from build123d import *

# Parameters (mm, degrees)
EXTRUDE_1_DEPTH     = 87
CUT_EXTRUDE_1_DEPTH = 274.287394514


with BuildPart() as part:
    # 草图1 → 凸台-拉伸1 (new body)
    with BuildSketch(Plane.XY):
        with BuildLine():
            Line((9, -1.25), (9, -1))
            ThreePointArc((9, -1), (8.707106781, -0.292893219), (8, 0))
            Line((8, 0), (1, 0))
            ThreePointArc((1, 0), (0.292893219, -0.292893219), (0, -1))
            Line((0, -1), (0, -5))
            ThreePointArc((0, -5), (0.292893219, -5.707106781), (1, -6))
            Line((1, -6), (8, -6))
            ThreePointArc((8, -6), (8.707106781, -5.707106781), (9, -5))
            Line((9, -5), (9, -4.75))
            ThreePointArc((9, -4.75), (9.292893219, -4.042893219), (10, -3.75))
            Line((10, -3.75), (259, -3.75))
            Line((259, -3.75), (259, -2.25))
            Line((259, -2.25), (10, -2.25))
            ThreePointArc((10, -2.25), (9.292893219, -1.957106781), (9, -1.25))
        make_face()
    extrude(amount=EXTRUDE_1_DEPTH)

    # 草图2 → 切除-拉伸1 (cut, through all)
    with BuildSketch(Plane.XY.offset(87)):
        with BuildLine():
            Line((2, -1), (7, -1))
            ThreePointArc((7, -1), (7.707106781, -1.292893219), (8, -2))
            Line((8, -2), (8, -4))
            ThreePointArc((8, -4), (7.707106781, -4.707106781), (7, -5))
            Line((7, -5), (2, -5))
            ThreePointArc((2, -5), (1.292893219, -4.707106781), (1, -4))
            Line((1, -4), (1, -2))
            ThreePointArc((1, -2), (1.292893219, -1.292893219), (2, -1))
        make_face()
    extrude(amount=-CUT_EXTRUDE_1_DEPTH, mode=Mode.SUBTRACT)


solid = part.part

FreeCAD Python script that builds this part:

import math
import FreeCAD as App
import Part
import Sketcher

V = App.Vector
Q = App.Units.Quantity

doc = App.newDocument("Part")
params = doc.addObject("Spreadsheet::Sheet", "Params")
for row, (alias, value) in enumerate([
    ("sketch1_radius", "1 mm"),
    ("sketch1_width", "7 mm"),
    ("sketch1_width2", "249 mm"),
    ("sketch1_height", "4 mm"),
    ("sketch1_height2", "1.5 mm"),
    ("pad1_length", "87 mm"),
    ("sketch2_radius", "1 mm"),
    ("sketch2_width", "5 mm"),
    ("sketch2_height", "2 mm"),
], start=1):
    params.set(f"A{row}", alias)
    params.set(f"B{row}", "=" + value)
    params.setAlias(f"B{row}", alias)

body = doc.addObject("PartDesign::Body", "Body")

sketch1 = body.newObject("Sketcher::SketchObject", "Sketch")
sketch1.AttachmentSupport = (doc.getObject("XY_Plane"), [""])
sketch1.MapMode = "FlatFace"
sketch1.addGeometry([
    Part.LineSegment(V(9, -1.25, 0), V(9, -1, 0)),
    Part.ArcOfCircle(Part.Circle(V(8, -1, 0), V(0, 0, 1), 1), math.radians(0), math.radians(90)),
    Part.LineSegment(V(8, 0, 0), V(1, 0, 0)),
    Part.ArcOfCircle(Part.Circle(V(1, -1, 0), V(0, 0, 1), 1), math.radians(90), math.radians(180)),
    Part.LineSegment(V(0, -1, 0), V(0, -5, 0)),
    Part.ArcOfCircle(Part.Circle(V(1, -5, 0), V(0, 0, 1), 1), math.radians(-180), math.radians(-90)),
    Part.LineSegment(V(1, -6, 0), V(8, -6, 0)),
    Part.ArcOfCircle(Part.Circle(V(8, -5, 0), V(0, 0, 1), 1), math.radians(-90), math.radians(0)),
    Part.LineSegment(V(9, -5, 0), V(9, -4.75, 0)),
    Part.ArcOfCircle(Part.Circle(V(10, -4.75, 0), V(0, 0, 1), 1), math.radians(90), math.radians(180)),
    Part.LineSegment(V(10, -3.75, 0), V(259, -3.75, 0)),
    Part.LineSegment(V(259, -3.75, 0), V(259, -2.25, 0)),
    Part.LineSegment(V(259, -2.25, 0), V(10, -2.25, 0)),
    Part.ArcOfCircle(Part.Circle(V(10, -1.25, 0), V(0, 0, 1), 1), math.radians(-180), math.radians(-90)),
], False)
sketch1.addConstraint([
    Sketcher.Constraint("Tangent", 0, 2, 1, 1),
    Sketcher.Constraint("Tangent", 1, 2, 2, 1),
    Sketcher.Constraint("Tangent", 2, 2, 3, 1),
    Sketcher.Constraint("Tangent", 3, 2, 4, 1),
    Sketcher.Constraint("Tangent", 4, 2, 5, 1),
    Sketcher.Constraint("Tangent", 5, 2, 6, 1),
    Sketcher.Constraint("Tangent", 6, 2, 7, 1),
    Sketcher.Constraint("Tangent", 7, 2, 8, 1),
    Sketcher.Constraint("Tangent", 8, 2, 9, 2),
    Sketcher.Constraint("Tangent", 9, 1, 10, 1),
    Sketcher.Constraint("Coincident", 10, 2, 11, 1),
    Sketcher.Constraint("Coincident", 11, 2, 12, 1),
    Sketcher.Constraint("Tangent", 12, 2, 13, 2),
    Sketcher.Constraint("Tangent", 13, 1, 0, 1),
    Sketcher.Constraint("Vertical", 0),
    Sketcher.Constraint("Horizontal", 2),
    Sketcher.Constraint("Vertical", 4),
    Sketcher.Constraint("Horizontal", 6),
    Sketcher.Constraint("Vertical", 8),
    Sketcher.Constraint("Horizontal", 10),
    Sketcher.Constraint("Vertical", 11),
    Sketcher.Constraint("Horizontal", 12),
    Sketcher.Constraint("Equal", 1, 3),
    Sketcher.Constraint("Equal", 3, 5),
    Sketcher.Constraint("Equal", 5, 7),
    Sketcher.Constraint("Equal", 7, 9),
    Sketcher.Constraint("Equal", 9, 13),
    Sketcher.Constraint("PointOnObject", 1, 2, -1),
    Sketcher.Constraint("PointOnObject", 3, 2, -2),
    Sketcher.Constraint("Vertical", 1, 3, 7, 3),
    Sketcher.Constraint("Equal", 0, 8),
    Sketcher.Constraint("Radius", 1, Q("1 mm")),
    Sketcher.Constraint("DistanceX", 2, 2, 2, 1, Q("7 mm")),
    Sketcher.Constraint("DistanceX", 10, 1, 10, 2, Q("249 mm")),
    Sketcher.Constraint("DistanceY", 4, 2, 4, 1, Q("4 mm")),
    Sketcher.Constraint("DistanceY", 11, 1, 11, 2, Q("1.5 mm")),
])
sketch1.setExpression("Constraints[31]", "Params.sketch1_radius")
sketch1.setExpression("Constraints[32]", "Params.sketch1_width")
sketch1.setExpression("Constraints[33]", "Params.sketch1_width2")
sketch1.setExpression("Constraints[34]", "Params.sketch1_height")
sketch1.setExpression("Constraints[35]", "Params.sketch1_height2")
pad1 = body.newObject("PartDesign::Pad", "Pad")
pad1.Profile = sketch1
pad1.setExpression("Length", "Params.pad1_length")

sketch2 = body.newObject("Sketcher::SketchObject", "Sketch001")
sketch2.AttachmentSupport = (doc.getObject("XY_Plane"), [""])
sketch2.MapMode = "FlatFace"
sketch2.AttachmentOffset = App.Placement(V(0, 0, 87), App.Rotation())
sketch2.addGeometry([
    Part.LineSegment(V(7, -1, 0), V(2, -1, 0)),
    Part.ArcOfCircle(Part.Circle(V(2, -2, 0), V(0, 0, 1), 1), math.radians(90), math.radians(180)),
    Part.LineSegment(V(1, -2, 0), V(1, -4, 0)),
    Part.ArcOfCircle(Part.Circle(V(2, -4, 0), V(0, 0, 1), 1), math.radians(-180), math.radians(-90)),
    Part.LineSegment(V(2, -5, 0), V(7, -5, 0)),
    Part.ArcOfCircle(Part.Circle(V(7, -4, 0), V(0, 0, 1), 1), math.radians(-90), math.radians(0)),
    Part.LineSegment(V(8, -4, 0), V(8, -2, 0)),
    Part.ArcOfCircle(Part.Circle(V(7, -2, 0), V(0, 0, 1), 1), math.radians(0), math.radians(90)),
], False)
sketch2.addConstraint([
    Sketcher.Constraint("Tangent", 0, 2, 1, 1),
    Sketcher.Constraint("Tangent", 1, 2, 2, 1),
    Sketcher.Constraint("Tangent", 2, 2, 3, 1),
    Sketcher.Constraint("Tangent", 3, 2, 4, 1),
    Sketcher.Constraint("Tangent", 4, 2, 5, 1),
    Sketcher.Constraint("Tangent", 5, 2, 6, 1),
    Sketcher.Constraint("Tangent", 6, 2, 7, 1),
    Sketcher.Constraint("Tangent", 7, 2, 0, 1),
    Sketcher.Constraint("Horizontal", 0),
    Sketcher.Constraint("Vertical", 2),
    Sketcher.Constraint("Horizontal", 4),
    Sketcher.Constraint("Vertical", 6),
    Sketcher.Constraint("Equal", 1, 3),
    Sketcher.Constraint("Equal", 3, 5),
    Sketcher.Constraint("Equal", 5, 7),
    Sketcher.Constraint("Radius", 1, Q("1 mm")),
    Sketcher.Constraint("DistanceX", 0, 2, 0, 1, Q("5 mm")),
    Sketcher.Constraint("DistanceY", 2, 2, 2, 1, Q("2 mm")),
    Sketcher.Constraint("DistanceX", -1, 1, 1, 3, Q("2 mm")),
    Sketcher.Constraint("DistanceY", 1, 3, -1, 1, Q("2 mm")),
])
sketch2.setExpression("Constraints[15]", "Params.sketch2_radius")
sketch2.setExpression("Constraints[16]", "Params.sketch2_width")
sketch2.setExpression("Constraints[17]", "Params.sketch2_height")
pocket1 = body.newObject("PartDesign::Pocket", "Pocket")
pocket1.Profile = sketch2
pocket1.Type = "ThroughAll"

doc.recompute()
